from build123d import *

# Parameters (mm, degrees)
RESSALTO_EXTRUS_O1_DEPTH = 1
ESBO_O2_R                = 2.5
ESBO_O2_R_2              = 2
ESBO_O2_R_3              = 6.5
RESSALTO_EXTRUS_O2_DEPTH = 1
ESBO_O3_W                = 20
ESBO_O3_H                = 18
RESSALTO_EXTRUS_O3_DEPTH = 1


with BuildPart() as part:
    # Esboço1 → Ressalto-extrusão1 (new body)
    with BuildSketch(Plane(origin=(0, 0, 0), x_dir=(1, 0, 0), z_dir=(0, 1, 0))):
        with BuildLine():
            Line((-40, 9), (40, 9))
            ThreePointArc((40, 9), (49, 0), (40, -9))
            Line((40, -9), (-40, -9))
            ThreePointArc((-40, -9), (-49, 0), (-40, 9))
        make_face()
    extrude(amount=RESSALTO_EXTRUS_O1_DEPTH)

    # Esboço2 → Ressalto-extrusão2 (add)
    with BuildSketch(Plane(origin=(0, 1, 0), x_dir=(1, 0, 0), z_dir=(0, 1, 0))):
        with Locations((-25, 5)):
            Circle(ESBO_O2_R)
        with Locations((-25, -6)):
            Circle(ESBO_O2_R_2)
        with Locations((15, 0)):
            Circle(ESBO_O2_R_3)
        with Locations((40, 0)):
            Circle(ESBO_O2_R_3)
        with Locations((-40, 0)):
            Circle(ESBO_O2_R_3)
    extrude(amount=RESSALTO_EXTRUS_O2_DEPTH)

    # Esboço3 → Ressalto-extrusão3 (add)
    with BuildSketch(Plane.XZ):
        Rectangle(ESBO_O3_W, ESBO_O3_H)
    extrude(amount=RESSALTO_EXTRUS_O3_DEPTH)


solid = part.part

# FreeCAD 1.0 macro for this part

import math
import FreeCAD as App
import Part
import Sketcher
from FreeCAD import Vector


def add_polygon(sketch, points):
    """Adds a closed chain of lines whose ends are joined by coincident constraints."""
    first, n = sketch.GeometryCount, len(points)
    for a, b in zip(points, points[1:] + points[:1]):
        sketch.addGeometry(Part.LineSegment(App.Vector(*a, 0), App.Vector(*b, 0)), False)
    for i in range(n):
        sketch.addConstraint(Sketcher.Constraint("Coincident", first + i, 2, first + (i + 1) % n, 1))

doc = App.newDocument("Part")
body = doc.addObject("PartDesign::Body", "Body")

# Sketch on XZ plane
sketch1 = body.newObject("Sketcher::SketchObject", "Sketch")
sketch1.AttachmentSupport = (doc.getObject("XZ_Plane"), [""])
sketch1.MapMode = "FlatFace"
sketch1.addGeometry([
    Part.LineSegment(Vector(40, -9, 0), Vector(-40, -9, 0)),
    Part.ArcOfCircle(Part.Circle(Vector(-40, 0, 0), Vector(0, 0, 1), 9), math.radians(90), math.radians(270)),
    Part.LineSegment(Vector(-40, 9, 0), Vector(40, 9, 0)),
    Part.ArcOfCircle(Part.Circle(Vector(40, 0, 0), Vector(0, 0, 1), 9), math.radians(-90), math.radians(90)),
], False)
sketch1.addConstraint([
    Sketcher.Constraint("Tangent", 0, 2, 1, 2),
    Sketcher.Constraint("Tangent", 1, 1, 2, 1),
    Sketcher.Constraint("Tangent", 2, 2, 3, 2),
    Sketcher.Constraint("Tangent", 3, 1, 0, 1),
    Sketcher.Constraint("Horizontal", 0),
    Sketcher.Constraint("Horizontal", 2),
    Sketcher.Constraint("Symmetric", 1, 3, 3, 3, -1, 1),
    Sketcher.Constraint("Radius", 1, 9.0),
    Sketcher.Constraint("DistanceX", 0, 2, 0, 1, 80.0),
])
pad1 = body.newObject("PartDesign::Pad", "Pad")
pad1.Profile = sketch1
pad1.Length = 1
pad1.Reversed = True

# Sketch on XZ plane
sketch2 = body.newObject("Sketcher::SketchObject", "Sketch001")
sketch2.AttachmentSupport = (doc.getObject("XZ_Plane"), [""])
sketch2.MapMode = "FlatFace"
sketch2.AttachmentOffset = App.Placement(Vector(0, 0, -1), App.Rotation())
sketch2.addGeometry([
    Part.Circle(Vector(-25, -5, 0), Vector(0, 0, 1), 2.5),  # 0
    Part.Circle(Vector(-25, 6, 0), Vector(0, 0, 1), 2),  # 1
    Part.Circle(Vector(15, 0, 0), Vector(0, 0, 1), 6.5),  # 2
    Part.Circle(Vector(40, 0, 0), Vector(0, 0, 1), 6.5),  # 3
    Part.Circle(Vector(-40, 0, 0), Vector(0, 0, 1), 6.5),  # 4
], False)
sketch2.addConstraint([
    Sketcher.Constraint("Equal", 2, 3),
    Sketcher.Constraint("Equal", 3, 4),
    Sketcher.Constraint("Symmetric", 3, 3, 4, 3, -1, 1),
    Sketcher.Constraint("PointOnObject", 2, 3, -1),
    Sketcher.Constraint("PointOnObject", 3, 3, -1),
    Sketcher.Constraint("Vertical", 0, 3, 1, 3),
    Sketcher.Constraint("Diameter", 0, 5.0),
    Sketcher.Constraint("Diameter", 1, 4.0),
    Sketcher.Constraint("Diameter", 2, 13.0),
    Sketcher.Constraint("DistanceX", 0, 3, -1, 1, 25.0),
    Sketcher.Constraint("DistanceY", 0, 3, -1, 1, 5.0),
    Sketcher.Constraint("DistanceY", -1, 1, 1, 3, 6.0),
    Sketcher.Constraint("DistanceX", -1, 1, 2, 3, 15.0),
    Sketcher.Constraint("DistanceX", -1, 1, 3, 3, 40.0),
])
pad2 = body.newObject("PartDesign::Pad", "Pad001")
pad2.Profile = sketch2
pad2.Length = 1
pad2.Reversed = True

# Sketch on XZ plane
sketch3 = body.newObject("Sketcher::SketchObject", "Sketch002")
sketch3.AttachmentSupport = (doc.getObject("XZ_Plane"), [""])
sketch3.MapMode = "FlatFace"
add_polygon(sketch3, [(-10, 9), (-10, -9), (10, -9), (10, 9)])  # lines 0-3
sketch3.addConstraint([
    Sketcher.Constraint("Vertical", 0),
    Sketcher.Constraint("Horizontal", 1),
    Sketcher.Constraint("Vertical", 2),
    Sketcher.Constraint("Horizontal", 3),
    Sketcher.Constraint("Symmetric", 0, 2, 2, 2, -1, 1),
    Sketcher.Constraint("DistanceX", 1, 1, 1, 2, 20.0),
    Sketcher.Constraint("DistanceY", 0, 2, 0, 1, 18.0),
])
pad3 = body.newObject("PartDesign::Pad", "Pad002")
pad3.Profile = sketch3
pad3.Length = 1

doc.recompute()
